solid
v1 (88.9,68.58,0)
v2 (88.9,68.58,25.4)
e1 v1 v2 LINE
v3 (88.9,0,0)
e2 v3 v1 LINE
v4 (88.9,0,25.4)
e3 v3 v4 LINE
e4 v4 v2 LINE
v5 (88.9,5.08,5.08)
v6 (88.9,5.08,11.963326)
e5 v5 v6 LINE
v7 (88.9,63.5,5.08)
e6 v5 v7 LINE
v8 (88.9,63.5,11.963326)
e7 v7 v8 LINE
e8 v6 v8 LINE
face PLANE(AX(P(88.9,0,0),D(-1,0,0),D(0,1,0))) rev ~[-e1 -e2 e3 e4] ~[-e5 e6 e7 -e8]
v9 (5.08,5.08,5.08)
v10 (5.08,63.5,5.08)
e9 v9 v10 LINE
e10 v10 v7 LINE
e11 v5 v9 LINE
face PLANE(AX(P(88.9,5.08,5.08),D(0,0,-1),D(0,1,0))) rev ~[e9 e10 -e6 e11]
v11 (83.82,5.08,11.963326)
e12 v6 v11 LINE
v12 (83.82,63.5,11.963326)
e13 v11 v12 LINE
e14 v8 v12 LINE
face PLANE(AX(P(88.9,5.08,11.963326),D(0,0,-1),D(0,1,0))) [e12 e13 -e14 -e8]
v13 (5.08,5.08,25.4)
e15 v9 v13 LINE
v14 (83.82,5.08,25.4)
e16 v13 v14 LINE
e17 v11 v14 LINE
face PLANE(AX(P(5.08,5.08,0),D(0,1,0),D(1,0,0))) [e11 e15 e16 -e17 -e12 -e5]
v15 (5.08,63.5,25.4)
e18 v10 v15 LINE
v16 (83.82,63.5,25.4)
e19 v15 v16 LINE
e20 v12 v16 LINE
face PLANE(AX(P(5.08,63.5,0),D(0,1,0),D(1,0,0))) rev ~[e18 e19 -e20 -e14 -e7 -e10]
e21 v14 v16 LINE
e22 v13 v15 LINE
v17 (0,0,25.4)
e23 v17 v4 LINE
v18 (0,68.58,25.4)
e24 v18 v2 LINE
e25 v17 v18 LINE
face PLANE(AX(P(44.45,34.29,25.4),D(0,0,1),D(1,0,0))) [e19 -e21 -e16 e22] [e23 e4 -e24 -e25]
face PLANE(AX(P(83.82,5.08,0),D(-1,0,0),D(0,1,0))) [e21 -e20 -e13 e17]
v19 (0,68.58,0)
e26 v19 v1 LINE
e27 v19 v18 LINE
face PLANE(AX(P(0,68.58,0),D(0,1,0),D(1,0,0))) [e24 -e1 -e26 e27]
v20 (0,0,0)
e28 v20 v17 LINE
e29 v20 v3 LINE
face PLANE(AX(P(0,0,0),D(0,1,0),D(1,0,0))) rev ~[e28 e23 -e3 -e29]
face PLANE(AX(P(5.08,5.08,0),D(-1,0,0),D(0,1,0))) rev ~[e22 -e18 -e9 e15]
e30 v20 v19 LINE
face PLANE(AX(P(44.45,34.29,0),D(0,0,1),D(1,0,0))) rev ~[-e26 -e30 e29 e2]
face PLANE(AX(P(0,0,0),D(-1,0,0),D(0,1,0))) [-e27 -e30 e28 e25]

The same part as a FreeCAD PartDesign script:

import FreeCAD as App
import Part
import Sketcher
Q = App.Units.Quantity

doc = App.newDocument("Part")
body = doc.addObject("PartDesign::Body", "Body")

sketch1 = body.newObject("Sketcher::SketchObject", "Sketch")
sketch1.AttachmentSupport = (doc.getObject("XY_Plane"), [""])
sketch1.MapMode = "FlatFace"
sketch1.addGeometry([
    Part.LineSegment(App.Vector(5, 64, 0), App.Vector(5, 5, 0)),
    Part.LineSegment(App.Vector(5, 5, 0), App.Vector(84, 5, 0)),
    Part.LineSegment(App.Vector(84, 5, 0), App.Vector(84, 64, 0)),
    Part.LineSegment(App.Vector(84, 64, 0), App.Vector(5, 64, 0)),
], False)
sketch1.addConstraint([
    Sketcher.Constraint("Coincident", 0, 2, 1, 1),
    Sketcher.Constraint("Coincident", 1, 2, 2, 1),
    Sketcher.Constraint("Coincident", 2, 2, 3, 1),
    Sketcher.Constraint("Coincident", 3, 2, 0, 1),
    Sketcher.Constraint("Vertical", 0),
    Sketcher.Constraint("Horizontal", 1),
    Sketcher.Constraint("Vertical", 2),
    Sketcher.Constraint("Horizontal", 3),
    Sketcher.Constraint("DistanceX", 1, 1, 1, 2, Q("3.1 in")),
    Sketcher.Constraint("DistanceY", 0, 2, 0, 1, Q("2.3 in")),
    Sketcher.Constraint("DistanceX", -1, 1, 0, 2, Q("0.2 in")),
    Sketcher.Constraint("DistanceY", -1, 1, 0, 2, Q("0.2 in")),
])
pad1 = body.newObject("PartDesign::Pad", "Pad")
pad1.Profile = sketch1
pad1.Length = Q("0.2 in")

sketch2 = body.newObject("Sketcher::SketchObject", "Sketch001")
sketch2.AttachmentSupport = (doc.getObject("XY_Plane"), [""])
sketch2.MapMode = "FlatFace"
sketch2.addGeometry([
    Part.LineSegment(App.Vector(0, 69, 0), App.Vector(0, 0, 0)),
    Part.LineSegment(App.Vector(0, 0, 0), App.Vector(89, 0, 0)),
    Part.LineSegment(App.Vector(89, 0, 0), App.Vector(89, 69, 0)),
    Part.LineSegment(App.Vector(89, 69, 0), App.Vector(0, 69, 0)),
    Part.LineSegment(App.Vector(84, 5, 0), App.Vector(5, 5, 0)),
    Part.LineSegment(App.Vector(5, 5, 0), App.Vector(5, 64, 0)),
    Part.LineSegment(App.Vector(5, 64, 0), App.Vector(84, 64, 0)),
    Part.LineSegment(App.Vector(84, 64, 0), App.Vector(84, 5, 0)),
], False)
sketch2.addConstraint([
    Sketcher.Constraint("Coincident", 0, 2, 1, 1),
    Sketcher.Constraint("Coincident", 1, 2, 2, 1),
    Sketcher.Constraint("Coincident", 2, 2, 3, 1),
    Sketcher.Constraint("Coincident", 3, 2, 0, 1),
    Sketcher.Constraint("Coincident", 4, 2, 5, 1),
    Sketcher.Constraint("Coincident", 5, 2, 6, 1),
    Sketcher.Constraint("Coincident", 6, 2, 7, 1),
    Sketcher.Constraint("Coincident", 7, 2, 4, 1),
    Sketcher.Constraint("Vertical", 0),
    Sketcher.Constraint("Horizontal", 1),
    Sketcher.Constraint("Vertical", 2),
    Sketcher.Constraint("Horizontal", 3),
    Sketcher.Constraint("Horizontal", 4),
    Sketcher.Constraint("Vertical", 5),
    Sketcher.Constraint("Horizontal", 6),
    Sketcher.Constraint("Vertical", 7),
    Sketcher.Constraint("Coincident", 0, 2, -1, 1),
    Sketcher.Constraint("DistanceX", 1, 1, 1, 2, Q("3.5 in")),
    Sketcher.Constraint("DistanceX", 4, 2, 4, 1, Q("3.1 in")),
    Sketcher.Constraint("DistanceY", 0, 2, 0, 1, Q("2.7 in")),
    Sketcher.Constraint("DistanceY", 5, 1, 5, 2, Q("2.3 in")),
    Sketcher.Constraint("DistanceX", -1, 1, 4, 2, Q("0.2 in")),
    Sketcher.Constraint("DistanceY", -1, 1, 4, 2, Q("0.2 in")),
])
pad2 = body.newObject("PartDesign::Pad", "Pad001")
pad2.Profile = sketch2
pad2.Length = Q("1 in")

sketch3 = body.newObject("Sketcher::SketchObject", "Sketch002")
sketch3.AttachmentSupport = (doc.getObject("YZ_Plane"), [""])
sketch3.MapMode = "FlatFace"
sketch3.AttachmentOffset = App.Placement(App.Vector(0, 0, 3.5 * 25.4), App.Rotation())
sketch3.addGeometry([
    Part.LineSegment(App.Vector(5, 12, 0), App.Vector(5, 5, 0)),
    Part.LineSegment(App.Vector(5, 5, 0), App.Vector(64, 5, 0)),
    Part.LineSegment(App.Vector(64, 5, 0), App.Vector(64, 12, 0)),
    Part.LineSegment(App.Vector(64, 12, 0), App.Vector(5, 12, 0)),
], False)
sketch3.addConstraint([
    Sketcher.Constraint("Coincident", 0, 2, 1, 1),
    Sketcher.Constraint("Coincident", 1, 2, 2, 1),
    Sketcher.Constraint("Coincident", 2, 2, 3, 1),
    Sketcher.Constraint("Coincident", 3, 2, 0, 1),
    Sketcher.Constraint("Vertical", 0),
    Sketcher.Constraint("Horizontal", 1),
    Sketcher.Constraint("Vertical", 2),
    Sketcher.Constraint("Horizontal", 3),
    Sketcher.Constraint("DistanceX", 1, 1, 1, 2, Q("2.3 in")),
    Sketcher.Constraint("DistanceX", -1, 1, 0, 2, Q("0.2 in")),
    Sketcher.Constraint("DistanceY", -1, 1, 0, 2, Q("0.2 in")),
    Sketcher.Constraint("DistanceY", 0, 2, 0, 1, 6.883326),
])
pocket1 = body.newObject("PartDesign::Pocket", "Pocket")
pocket1.Profile = sketch3
pocket1.Length = Q("0.2 in")

doc.recompute()
